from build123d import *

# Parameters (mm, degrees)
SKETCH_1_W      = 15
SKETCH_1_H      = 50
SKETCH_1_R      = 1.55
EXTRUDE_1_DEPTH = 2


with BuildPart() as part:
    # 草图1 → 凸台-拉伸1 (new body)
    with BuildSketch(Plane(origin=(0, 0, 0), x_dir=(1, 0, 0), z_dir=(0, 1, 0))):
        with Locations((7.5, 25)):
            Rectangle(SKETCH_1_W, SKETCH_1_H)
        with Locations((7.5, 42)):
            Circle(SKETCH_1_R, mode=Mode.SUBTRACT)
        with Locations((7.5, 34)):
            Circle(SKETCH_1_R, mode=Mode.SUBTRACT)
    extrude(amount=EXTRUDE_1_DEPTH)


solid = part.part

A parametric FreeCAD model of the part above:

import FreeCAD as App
import Part
import Sketcher


def add_polygon(sketch, points):
    """Adds a closed chain of lines whose ends are joined by coincident constraints."""
    first, n = sketch.GeometryCount, len(points)
    for a, b in zip(points, points[1:] + points[:1]):
        sketch.addGeometry(Part.LineSegment(App.Vector(*a, 0), App.Vector(*b, 0)), False)
    for i in range(n):
        sketch.addConstraint(Sketcher.Constraint("Coincident", first + i, 2, first + (i + 1) % n, 1))

doc = App.newDocument("Part")
body = doc.addObject("PartDesign::Body", "Body")

sketch1 = doc.addObject("Sketcher::SketchObject", "Sketch")
body.addObject(sketch1)
sketch1.AttachmentSupport = (doc.XZ_Plane, [""])
sketch1.MapMode = "FlatFace"
add_polygon(sketch1, [(0, -50), (0, 0), (15, 0), (15, -50)])
sketch1.addGeometry(Part.Circle(App.Vector(7.5, -34, 0), App.Vector(0, 0, 1), 1.6), False)
sketch1.addGeometry(Part.Circle(App.Vector(7.5, -42, 0), App.Vector(0, 0, 1), 1.6), False)
sketch1.addConstraint(Sketcher.Constraint("Vertical", 0))
sketch1.addConstraint(Sketcher.Constraint("Horizontal", 1))
sketch1.addConstraint(Sketcher.Constraint("Vertical", 2))
sketch1.addConstraint(Sketcher.Constraint("Horizontal", 3))
sketch1.addConstraint(Sketcher.Constraint("Coincident", 0, 2, -1, 1))
sketch1.addConstraint(Sketcher.Constraint("Equal", 4, 5))
sketch1.addConstraint(Sketcher.Constraint("Vertical", 4, 3, 5, 3))
sketch1.addConstraint(Sketcher.Constraint("Diameter", 4, 3.1))
sketch1.addConstraint(Sketcher.Constraint("DistanceX", 1, 1, 1, 2, 15.0))
sketch1.addConstraint(Sketcher.Constraint("DistanceY", 0, 1, 0, 2, 50.0))
sketch1.addConstraint(Sketcher.Constraint("DistanceY", 4, 3, -1, 1, 34.0))
sketch1.addConstraint(Sketcher.Constraint("DistanceY", 5, 3, -1, 1, 42.0))
sketch1.addConstraint(Sketcher.Constraint("DistanceX", -1, 1, 4, 3, 7.5))
pad1 = doc.addObject("PartDesign::Pad", "Pad")
body.addObject(pad1)
pad1.Profile = sketch1
pad1.Length = 2
pad1.Reversed = True

doc.recompute()
